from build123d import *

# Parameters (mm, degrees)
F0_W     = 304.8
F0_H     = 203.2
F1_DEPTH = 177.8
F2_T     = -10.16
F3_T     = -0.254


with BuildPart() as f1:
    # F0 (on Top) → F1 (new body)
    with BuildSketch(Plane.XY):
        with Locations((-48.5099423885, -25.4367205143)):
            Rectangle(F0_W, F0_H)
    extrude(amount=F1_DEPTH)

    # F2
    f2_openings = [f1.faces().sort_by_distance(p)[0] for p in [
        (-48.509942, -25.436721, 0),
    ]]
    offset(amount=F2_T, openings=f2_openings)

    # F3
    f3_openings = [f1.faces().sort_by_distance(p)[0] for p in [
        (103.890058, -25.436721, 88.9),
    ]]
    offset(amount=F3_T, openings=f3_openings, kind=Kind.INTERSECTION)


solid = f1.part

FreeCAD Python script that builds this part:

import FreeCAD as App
import Part
import Sketcher

V = App.Vector
Q = App.Units.Quantity


def faces_at(feature, points):
    """Names of the faces that lie closest to the given points."""
    faces = feature.Shape.Faces
    near = lambda p: min(range(len(faces)), key=lambda i: faces[i].distToShape(Part.Vertex(*p))[0])
    return sorted({f"Face{near(p) + 1}" for p in points})


def add_polygon(sketch, points):
    """Adds a closed chain of lines whose ends are joined by coincident constraints."""
    first, n = sketch.GeometryCount, len(points)
    for a, b in zip(points, points[1:] + points[:1]):
        sketch.addGeometry(Part.LineSegment(App.Vector(*a, 0), App.Vector(*b, 0)), False)
    for i in range(n):
        sketch.addConstraint(Sketcher.Constraint("Coincident", first + i, 2, first + (i + 1) % n, 1))

doc = App.newDocument("Part")
body = doc.addObject("PartDesign::Body", "Body")

sketch1 = body.newObject("Sketcher::SketchObject", "Sketch")
sketch1.AttachmentSupport = (doc.getObject("XY_Plane"), [""])
sketch1.MapMode = "FlatFace"
add_polygon(sketch1, [(-200.909942, 76.163279), (-200.909942, -127.036721), (103.890058, -127.036721), (103.890058, 76.163279)])
sketch1.addConstraint([
    Sketcher.Constraint("Vertical", 0),
    Sketcher.Constraint("Horizontal", 1),
    Sketcher.Constraint("Vertical", 2),
    Sketcher.Constraint("Horizontal", 3),
    Sketcher.Constraint("DistanceX", 1, 1, 1, 2, Q("12 in")),
    Sketcher.Constraint("DistanceY", 0, 2, 0, 1, Q("8 in")),
    Sketcher.Constraint("DistanceY", 0, 2, -1, 1, 127.036721),
    Sketcher.Constraint("DistanceX", 0, 2, -1, 1, 200.909942),
])
pad1 = body.newObject("PartDesign::Pad", "Pad")
pad1.Profile = sketch1
pad1.Length = Q("7 in")
doc.recompute()

thickness = body.newObject("PartDesign::Thickness", "Thickness")
thickness.Base = (pad1, faces_at(pad1, [(-48.51, -25.437, 0)]))
thickness.Value = Q("0.4 in")
thickness.Reversed = True
thickness.Join = "Arc"
doc.recompute()

thickness2 = body.newObject("PartDesign::Thickness", "Thickness001")
thickness2.Base = (thickness, faces_at(thickness, [(103.89, -25.437, 88.9)]))
thickness2.Value = Q("0.01 in")
thickness2.Reversed = True
thickness2.Join = "Intersection"

doc.recompute()
